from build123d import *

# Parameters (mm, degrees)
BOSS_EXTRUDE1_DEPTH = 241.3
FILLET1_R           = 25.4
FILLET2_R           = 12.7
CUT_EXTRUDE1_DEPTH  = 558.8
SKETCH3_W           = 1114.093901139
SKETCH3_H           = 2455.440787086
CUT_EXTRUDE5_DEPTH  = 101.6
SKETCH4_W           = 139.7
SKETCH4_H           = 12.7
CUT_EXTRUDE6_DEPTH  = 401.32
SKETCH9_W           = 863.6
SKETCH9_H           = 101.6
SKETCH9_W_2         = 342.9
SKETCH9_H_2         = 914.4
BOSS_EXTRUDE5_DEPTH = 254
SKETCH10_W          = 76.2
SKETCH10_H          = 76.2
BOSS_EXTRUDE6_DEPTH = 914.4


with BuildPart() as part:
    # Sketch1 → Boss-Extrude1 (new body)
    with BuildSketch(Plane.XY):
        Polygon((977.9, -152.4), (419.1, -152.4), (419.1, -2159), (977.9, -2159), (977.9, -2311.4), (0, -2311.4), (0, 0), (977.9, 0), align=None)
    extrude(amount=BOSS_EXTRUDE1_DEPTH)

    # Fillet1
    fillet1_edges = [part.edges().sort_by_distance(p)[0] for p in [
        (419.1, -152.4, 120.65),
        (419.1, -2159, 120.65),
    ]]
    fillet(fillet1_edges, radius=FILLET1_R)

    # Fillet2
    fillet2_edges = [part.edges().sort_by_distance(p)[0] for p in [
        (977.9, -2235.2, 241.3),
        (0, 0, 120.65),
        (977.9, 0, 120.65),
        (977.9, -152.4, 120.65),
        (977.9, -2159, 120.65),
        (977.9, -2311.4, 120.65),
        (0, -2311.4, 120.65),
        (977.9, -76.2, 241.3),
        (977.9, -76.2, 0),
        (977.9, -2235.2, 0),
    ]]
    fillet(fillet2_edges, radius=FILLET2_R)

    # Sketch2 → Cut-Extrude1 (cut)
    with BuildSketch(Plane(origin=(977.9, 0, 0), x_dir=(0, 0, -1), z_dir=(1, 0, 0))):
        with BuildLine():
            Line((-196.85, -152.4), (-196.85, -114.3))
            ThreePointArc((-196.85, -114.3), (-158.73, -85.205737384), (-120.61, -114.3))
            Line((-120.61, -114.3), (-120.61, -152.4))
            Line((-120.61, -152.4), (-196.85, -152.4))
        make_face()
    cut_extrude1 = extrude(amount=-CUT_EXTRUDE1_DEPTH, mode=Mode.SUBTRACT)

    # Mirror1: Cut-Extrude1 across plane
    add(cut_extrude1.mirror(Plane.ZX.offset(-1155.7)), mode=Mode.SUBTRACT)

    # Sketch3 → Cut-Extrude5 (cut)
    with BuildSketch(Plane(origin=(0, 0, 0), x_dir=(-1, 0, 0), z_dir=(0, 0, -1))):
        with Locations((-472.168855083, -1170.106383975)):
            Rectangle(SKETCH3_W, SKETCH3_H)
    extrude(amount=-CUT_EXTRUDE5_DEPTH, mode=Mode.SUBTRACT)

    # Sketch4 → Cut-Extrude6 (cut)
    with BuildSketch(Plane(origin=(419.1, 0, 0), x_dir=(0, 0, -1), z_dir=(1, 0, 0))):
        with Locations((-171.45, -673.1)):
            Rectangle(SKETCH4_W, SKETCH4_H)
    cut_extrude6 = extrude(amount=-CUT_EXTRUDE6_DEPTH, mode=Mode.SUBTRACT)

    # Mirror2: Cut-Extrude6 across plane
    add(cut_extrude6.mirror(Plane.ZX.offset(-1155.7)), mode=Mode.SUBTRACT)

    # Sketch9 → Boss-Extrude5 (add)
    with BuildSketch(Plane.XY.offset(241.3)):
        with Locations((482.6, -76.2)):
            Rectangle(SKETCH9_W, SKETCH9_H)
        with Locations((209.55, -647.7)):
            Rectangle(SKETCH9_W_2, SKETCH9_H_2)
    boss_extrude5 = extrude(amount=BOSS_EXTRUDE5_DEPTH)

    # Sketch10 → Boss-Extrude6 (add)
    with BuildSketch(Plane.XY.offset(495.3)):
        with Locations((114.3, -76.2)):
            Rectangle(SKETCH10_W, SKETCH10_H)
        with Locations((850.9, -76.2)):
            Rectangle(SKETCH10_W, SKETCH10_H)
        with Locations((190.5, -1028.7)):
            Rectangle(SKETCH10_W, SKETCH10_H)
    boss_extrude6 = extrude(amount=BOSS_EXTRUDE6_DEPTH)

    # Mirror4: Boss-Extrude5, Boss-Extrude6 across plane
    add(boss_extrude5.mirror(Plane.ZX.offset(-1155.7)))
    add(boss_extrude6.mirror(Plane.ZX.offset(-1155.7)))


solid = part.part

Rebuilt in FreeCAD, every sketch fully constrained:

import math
import FreeCAD as App
import Part
import Sketcher
Q = App.Units.Quantity


def edges_at(feature, points):
    """Names of the edges that pass closest to the given points."""
    edges = feature.Shape.Edges
    near = lambda p: min(range(len(edges)), key=lambda i: edges[i].distToShape(Part.Vertex(*p))[0])
    return sorted({f"Edge{near(p) + 1}" for p in points})

doc = App.newDocument("Part")
body = doc.addObject("PartDesign::Body", "Body")

sketch1 = body.newObject("Sketcher::SketchObject", "Sketch")
sketch1.AttachmentSupport = (doc.getObject("XY_Plane"), [""])
sketch1.MapMode = "FlatFace"
sketch1.addGeometry(Part.LineSegment(App.Vector(419, -152, 0), App.Vector(978, -152, 0)), False)
sketch1.addGeometry(Part.LineSegment(App.Vector(978, -152, 0), App.Vector(978, 0, 0)), False)
sketch1.addGeometry(Part.LineSegment(App.Vector(978, 0, 0), App.Vector(0, 0, 0)), False)
sketch1.addGeometry(Part.LineSegment(App.Vector(0, 0, 0), App.Vector(0, -2311, 0)), False)
sketch1.addGeometry(Part.LineSegment(App.Vector(0, -2311, 0), App.Vector(978, -2311, 0)), False)
sketch1.addGeometry(Part.LineSegment(App.Vector(978, -2311, 0), App.Vector(978, -2159, 0)), False)
sketch1.addGeometry(Part.LineSegment(App.Vector(978, -2159, 0), App.Vector(419, -2159, 0)), False)
sketch1.addGeometry(Part.LineSegment(App.Vector(419, -2159, 0), App.Vector(419, -152, 0)), False)
sketch1.addConstraint(Sketcher.Constraint("Coincident", 0, 2, 1, 1))
sketch1.addConstraint(Sketcher.Constraint("Coincident", 1, 2, 2, 1))
sketch1.addConstraint(Sketcher.Constraint("Coincident", 2, 2, 3, 1))
sketch1.addConstraint(Sketcher.Constraint("Coincident", 3, 2, 4, 1))
sketch1.addConstraint(Sketcher.Constraint("Coincident", 4, 2, 5, 1))
sketch1.addConstraint(Sketcher.Constraint("Coincident", 5, 2, 6, 1))
sketch1.addConstraint(Sketcher.Constraint("Coincident", 6, 2, 7, 1))
sketch1.addConstraint(Sketcher.Constraint("Coincident", 7, 2, 0, 1))
sketch1.addConstraint(Sketcher.Constraint("Horizontal", 0))
sketch1.addConstraint(Sketcher.Constraint("Vertical", 1))
sketch1.addConstraint(Sketcher.Constraint("Horizontal", 2))
sketch1.addConstraint(Sketcher.Constraint("Vertical", 3))
sketch1.addConstraint(Sketcher.Constraint("Horizontal", 4))
sketch1.addConstraint(Sketcher.Constraint("Vertical", 5))
sketch1.addConstraint(Sketcher.Constraint("Horizontal", 6))
sketch1.addConstraint(Sketcher.Constraint("Vertical", 7))
sketch1.addConstraint(Sketcher.Constraint("Coincident", 2, 2, -1, 1))
sketch1.addConstraint(Sketcher.Constraint("Vertical", 1, 2, 4, 2))
sketch1.addConstraint(Sketcher.Constraint("Equal", 1, 5))
sketch1.addConstraint(Sketcher.Constraint("DistanceX", 0, 1, 0, 2, Q("22 in")))
sketch1.addConstraint(Sketcher.Constraint("DistanceY", 1, 1, 1, 2, Q("6 in")))
sketch1.addConstraint(Sketcher.Constraint("DistanceY", 3, 2, 3, 1, Q("91 in")))
sketch1.addConstraint(Sketcher.Constraint("DistanceX", 2, 2, 2, 1, Q("38.5 in")))
pad1 = body.newObject("PartDesign::Pad", "Pad")
pad1.Profile = sketch1
pad1.Length = Q("9.5 in")
doc.recompute()

fillet = body.newObject("PartDesign::Fillet", "Fillet")
fillet.Base = (pad1, edges_at(pad1, [(419.1, -152.4, 120.65), (419.1, -2159, 120.65)]))
fillet.Radius = Q("1 in")
doc.recompute()

fillet2 = body.newObject("PartDesign::Fillet", "Fillet001")
fillet2.Base = (fillet, edges_at(fillet, [
    (977.9, -2235.2, 241.3),
    (0, 0, 120.65),
    (977.9, 0, 120.65),
    (977.9, -152.4, 120.65),
    (977.9, -2159, 120.65),
    (977.9, -2311.4, 120.65),
    (0, -2311.4, 120.65),
    (977.9, -76.2, 241.3),
    (977.9, -76.2, 0),
    (977.9, -2235.2, 0),
]))
fillet2.Radius = Q("0.5 in")

sketch2 = body.newObject("Sketcher::SketchObject", "Sketch001")
sketch2.AttachmentSupport = (doc.getObject("YZ_Plane"), [""])
sketch2.MapMode = "FlatFace"
sketch2.AttachmentOffset = App.Placement(App.Vector(0, 0, 38.5 * 25.4), App.Rotation())
sketch2.addGeometry(Part.LineSegment(App.Vector(-114, 197, 0), App.Vector(-152, 197, 0)), False)
sketch2.addGeometry(Part.LineSegment(App.Vector(-152, 197, 0), App.Vector(-152, 121, 0)), False)
sketch2.addGeometry(Part.LineSegment(App.Vector(-152, 121, 0), App.Vector(-114, 121, 0)), False)
sketch2.addGeometry(Part.ArcOfCircle(Part.Circle(App.Vector(-125, 159, 0), App.Vector(0, 0, 1), 40), math.radians(-75), math.radians(75)), False)
sketch2.addConstraint(Sketcher.Constraint("Coincident", 0, 2, 1, 1))
sketch2.addConstraint(Sketcher.Constraint("Coincident", 1, 2, 2, 1))
sketch2.addConstraint(Sketcher.Constraint("Coincident", 2, 2, 3, 1))
sketch2.addConstraint(Sketcher.Constraint("Coincident", 3, 2, 0, 1))
sketch2.addConstraint(Sketcher.Constraint("Horizontal", 0))
sketch2.addConstraint(Sketcher.Constraint("Vertical", 1))
sketch2.addConstraint(Sketcher.Constraint("Horizontal", 2))
sketch2.addConstraint(Sketcher.Constraint("Vertical", 2, 2, 3, 2))
sketch2.addConstraint(Sketcher.Constraint("DistanceX", 0, 2, 0, 1, Q("1.5 in")))
sketch2.addConstraint(Sketcher.Constraint("DistanceX", 0, 2, -1, 1, Q("6 in")))
sketch2.addConstraint(Sketcher.Constraint("DistanceY", -1, 1, 0, 2, Q("7.75 in")))
sketch2.addConstraint(Sketcher.Constraint("Radius", 3, 39.52))
sketch2.addConstraint(Sketcher.Constraint("DistanceY", 1, 2, 1, 1, 76.24))
pocket1 = body.newObject("PartDesign::Pocket", "Pocket")
pocket1.Profile = sketch2
pocket1.Length = Q("22 in")
doc.recompute()

datumplane = body.newObject("PartDesign::Plane", "DatumPlane")
datumplane.AttachmentSupport = (doc.getObject("XZ_Plane"), [""])
datumplane.MapMode = "FlatFace"
datumplane.AttachmentOffset = App.Placement(App.Vector(0, 0, 45.5 * 25.4), App.Rotation())
mirrored = body.newObject("PartDesign::Mirrored", "Mirrored")
mirrored.Originals = [pocket1]
mirrored.MirrorPlane = (datumplane, [""])
body.Tip = mirrored

sketch3 = body.newObject("Sketcher::SketchObject", "Sketch002")
sketch3.AttachmentSupport = (doc.getObject("XY_Plane"), [""])
sketch3.MapMode = "FlatFace"
sketch3.addGeometry(Part.LineSegment(App.Vector(1029, 58, 0), App.Vector(1029, -2398, 0)), False)
sketch3.addGeometry(Part.LineSegment(App.Vector(1029, -2398, 0), App.Vector(-85, -2398, 0)), False)
sketch3.addGeometry(Part.LineSegment(App.Vector(-85, -2398, 0), App.Vector(-85, 58, 0)), False)
sketch3.addGeometry(Part.LineSegment(App.Vector(-85, 58, 0), App.Vector(1029, 58, 0)), False)
sketch3.addConstraint(Sketcher.Constraint("Coincident", 0, 2, 1, 1))
sketch3.addConstraint(Sketcher.Constraint("Coincident", 1, 2, 2, 1))
sketch3.addConstraint(Sketcher.Constraint("Coincident", 2, 2, 3, 1))
sketch3.addConstraint(Sketcher.Constraint("Coincident", 3, 2, 0, 1))
sketch3.addConstraint(Sketcher.Constraint("Vertical", 0))
sketch3.addConstraint(Sketcher.Constraint("Horizontal", 1))
sketch3.addConstraint(Sketcher.Constraint("Vertical", 2))
sketch3.addConstraint(Sketcher.Constraint("Horizontal", 3))
sketch3.addConstraint(Sketcher.Constraint("DistanceX", 1, 2, 1, 1, 1114.093901))
sketch3.addConstraint(Sketcher.Constraint("DistanceY", 0, 2, 0, 1, 2455.440787))
sketch3.addConstraint(Sketcher.Constraint("DistanceY", -1, 1, 2, 2, 57.61401))
sketch3.addConstraint(Sketcher.Constraint("DistanceX", -1, 1, 0, 2, 1029.215806))
pocket2 = body.newObject("PartDesign::Pocket", "Pocket001")
pocket2.Profile = sketch3
pocket2.Length = Q("4 in")
pocket2.Reversed = True

sketch4 = body.newObject("Sketcher::SketchObject", "Sketch003")
sketch4.AttachmentSupport = (doc.getObject("YZ_Plane"), [""])
sketch4.MapMode = "FlatFace"
sketch4.AttachmentOffset = App.Placement(App.Vector(0, 0, 16.5 * 25.4), App.Rotation())
sketch4.addGeometry(Part.LineSegment(App.Vector(-667, 241, 0), App.Vector(-679, 241, 0)), False)
sketch4.addGeometry(Part.LineSegment(App.Vector(-679, 241, 0), App.Vector(-679, 102, 0)), False)
sketch4.addGeometry(Part.LineSegment(App.Vector(-679, 102, 0), App.Vector(-667, 102, 0)), False)
sketch4.addGeometry(Part.LineSegment(App.Vector(-667, 102, 0), App.Vector(-667, 241, 0)), False)
sketch4.addConstraint(Sketcher.Constraint("Coincident", 0, 2, 1, 1))
sketch4.addConstraint(Sketcher.Constraint("Coincident", 1, 2, 2, 1))
sketch4.addConstraint(Sketcher.Constraint("Coincident", 2, 2, 3, 1))
sketch4.addConstraint(Sketcher.Constraint("Coincident", 3, 2, 0, 1))
sketch4.addConstraint(Sketcher.Constraint("Horizontal", 0))
sketch4.addConstraint(Sketcher.Constraint("Vertical", 1))
sketch4.addConstraint(Sketcher.Constraint("Horizontal", 2))
sketch4.addConstraint(Sketcher.Constraint("Vertical", 3))
sketch4.addConstraint(Sketcher.Constraint("DistanceX", 0, 2, 0, 1, Q("0.5 in")))
sketch4.addConstraint(Sketcher.Constraint("DistanceY", 1, 2, 1, 1, Q("5.5 in")))
sketch4.addConstraint(Sketcher.Constraint("DistanceY", -1, 1, 1, 2, Q("4 in")))
sketch4.addConstraint(Sketcher.Constraint("DistanceX", 0, 2, -1, 1, Q("26.75 in")))
pocket3 = body.newObject("PartDesign::Pocket", "Pocket002")
pocket3.Profile = sketch4
pocket3.Length = Q("15.8 in")
doc.recompute()

datumplane2 = body.newObject("PartDesign::Plane", "DatumPlane001")
datumplane2.AttachmentSupport = (doc.getObject("XZ_Plane"), [""])
datumplane2.MapMode = "FlatFace"
datumplane2.AttachmentOffset = App.Placement(App.Vector(0, 0, 45.5 * 25.4), App.Rotation())
mirrored2 = body.newObject("PartDesign::Mirrored", "Mirrored001")
mirrored2.Originals = [pocket3]
mirrored2.MirrorPlane = (datumplane2, [""])
body.Tip = mirrored2

sketch5 = body.newObject("Sketcher::SketchObject", "Sketch004")
sketch5.AttachmentSupport = (doc.getObject("XY_Plane"), [""])
sketch5.MapMode = "FlatFace"
sketch5.AttachmentOffset = App.Placement(App.Vector(0, 0, 9.5 * 25.4), App.Rotation())
sketch5.addGeometry(Part.LineSegment(App.Vector(51, -25, 0), App.Vector(51, -127, 0)), False)
sketch5.addGeometry(Part.LineSegment(App.Vector(51, -127, 0), App.Vector(914, -127, 0)), False)
sketch5.addGeometry(Part.LineSegment(App.Vector(914, -127, 0), App.Vector(914, -25, 0)), False)
sketch5.addGeometry(Part.LineSegment(App.Vector(914, -25, 0), App.Vector(51, -25, 0)), False)
sketch5.addGeometry(Part.LineSegment(App.Vector(38, -190, 0), App.Vector(38, -1105, 0)), False)
sketch5.addGeometry(Part.LineSegment(App.Vector(38, -1105, 0), App.Vector(381, -1105, 0)), False)
sketch5.addGeometry(Part.LineSegment(App.Vector(381, -1105, 0), App.Vector(381, -190, 0)), False)
sketch5.addGeometry(Part.LineSegment(App.Vector(381, -190, 0), App.Vector(38, -190, 0)), False)
sketch5.addConstraint(Sketcher.Constraint("Coincident", 0, 2, 1, 1))
sketch5.addConstraint(Sketcher.Constraint("Coincident", 1, 2, 2, 1))
sketch5.addConstraint(Sketcher.Constraint("Coincident", 2, 2, 3, 1))
sketch5.addConstraint(Sketcher.Constraint("Coincident", 3, 2, 0, 1))
sketch5.addConstraint(Sketcher.Constraint("Coincident", 4, 2, 5, 1))
sketch5.addConstraint(Sketcher.Constraint("Coincident", 5, 2, 6, 1))
sketch5.addConstraint(Sketcher.Constraint("Coincident", 6, 2, 7, 1))
sketch5.addConstraint(Sketcher.Constraint("Coincident", 7, 2, 4, 1))
sketch5.addConstraint(Sketcher.Constraint("Vertical", 0))
sketch5.addConstraint(Sketcher.Constraint("Horizontal", 1))
sketch5.addConstraint(Sketcher.Constraint("Vertical", 2))
sketch5.addConstraint(Sketcher.Constraint("Horizontal", 3))
sketch5.addConstraint(Sketcher.Constraint("Vertical", 4))
sketch5.addConstraint(Sketcher.Constraint("Horizontal", 5))
sketch5.addConstraint(Sketcher.Constraint("Vertical", 6))
sketch5.addConstraint(Sketcher.Constraint("Horizontal", 7))
sketch5.addConstraint(Sketcher.Constraint("DistanceX", 1, 1, 1, 2, Q("34 in")))
sketch5.addConstraint(Sketcher.Constraint("DistanceY", 0, 2, 0, 1, Q("4 in")))
sketch5.addConstraint(Sketcher.Constraint("DistanceY", 4, 2, 4, 1, Q("36 in")))
sketch5.addConstraint(Sketcher.Constraint("DistanceX", 5, 1, 5, 2, Q("13.5 in")))
sketch5.addConstraint(Sketcher.Constraint("DistanceX", -1, 1, 0, 2, Q("2 in")))
sketch5.addConstraint(Sketcher.Constraint("DistanceY", 0, 2, -1, 1, Q("5 in")))
sketch5.addConstraint(Sketcher.Constraint("DistanceX", -1, 1, 5, 2, Q("15 in")))
sketch5.addConstraint(Sketcher.Constraint("DistanceY", 4, 2, -1, 1, Q("43.5 in")))
pad2 = body.newObject("PartDesign::Pad", "Pad001")
pad2.Profile = sketch5
pad2.Length = Q("10 in")

sketch6 = body.newObject("Sketcher::SketchObject", "Sketch005")
sketch6.AttachmentSupport = (doc.getObject("XY_Plane"), [""])
sketch6.MapMode = "FlatFace"
sketch6.AttachmentOffset = App.Placement(App.Vector(0, 0, 19.5 * 25.4), App.Rotation())
sketch6.addGeometry(Part.LineSegment(App.Vector(76, -38, 0), App.Vector(76, -114, 0)), False)
sketch6.addGeometry(Part.LineSegment(App.Vector(76, -114, 0), App.Vector(152, -114, 0)), False)
sketch6.addGeometry(Part.LineSegment(App.Vector(152, -114, 0), App.Vector(152, -38, 0)), False)
sketch6.addGeometry(Part.LineSegment(App.Vector(152, -38, 0), App.Vector(76, -38, 0)), False)
sketch6.addGeometry(Part.LineSegment(App.Vector(813, -38, 0), App.Vector(813, -114, 0)), False)
sketch6.addGeometry(Part.LineSegment(App.Vector(813, -114, 0), App.Vector(889, -114, 0)), False)
sketch6.addGeometry(Part.LineSegment(App.Vector(889, -114, 0), App.Vector(889, -38, 0)), False)
sketch6.addGeometry(Part.LineSegment(App.Vector(889, -38, 0), App.Vector(813, -38, 0)), False)
sketch6.addGeometry(Part.LineSegment(App.Vector(152, -991, 0), App.Vector(152, -1067, 0)), False)
sketch6.addGeometry(Part.LineSegment(App.Vector(152, -1067, 0), App.Vector(229, -1067, 0)), False)
sketch6.addGeometry(Part.LineSegment(App.Vector(229, -1067, 0), App.Vector(229, -991, 0)), False)
sketch6.addGeometry(Part.LineSegment(App.Vector(229, -991, 0), App.Vector(152, -991, 0)), False)
sketch6.addConstraint(Sketcher.Constraint("Coincident", 0, 2, 1, 1))
sketch6.addConstraint(Sketcher.Constraint("Coincident", 1, 2, 2, 1))
sketch6.addConstraint(Sketcher.Constraint("Coincident", 2, 2, 3, 1))
sketch6.addConstraint(Sketcher.Constraint("Coincident", 3, 2, 0, 1))
sketch6.addConstraint(Sketcher.Constraint("Coincident", 4, 2, 5, 1))
sketch6.addConstraint(Sketcher.Constraint("Coincident", 5, 2, 6, 1))
sketch6.addConstraint(Sketcher.Constraint("Coincident", 6, 2, 7, 1))
sketch6.addConstraint(Sketcher.Constraint("Coincident", 7, 2, 4, 1))
sketch6.addConstraint(Sketcher.Constraint("Coincident", 8, 2, 9, 1))
sketch6.addConstraint(Sketcher.Constraint("Coincident", 9, 2, 10, 1))
sketch6.addConstraint(Sketcher.Constraint("Coincident", 10, 2, 11, 1))
sketch6.addConstraint(Sketcher.Constraint("Coincident", 11, 2, 8, 1))
sketch6.addConstraint(Sketcher.Constraint("Vertical", 0))
sketch6.addConstraint(Sketcher.Constraint("Horizontal", 1))
sketch6.addConstraint(Sketcher.Constraint("Vertical", 2))
sketch6.addConstraint(Sketcher.Constraint("Horizontal", 3))
sketch6.addConstraint(Sketcher.Constraint("Vertical", 4))
sketch6.addConstraint(Sketcher.Constraint("Horizontal", 5))
sketch6.addConstraint(Sketcher.Constraint("Vertical", 6))
sketch6.addConstraint(Sketcher.Constraint("Horizontal", 7))
sketch6.addConstraint(Sketcher.Constraint("Vertical", 8))
sketch6.addConstraint(Sketcher.Constraint("Horizontal", 9))
sketch6.addConstraint(Sketcher.Constraint("Vertical", 10))
sketch6.addConstraint(Sketcher.Constraint("Horizontal", 11))
sketch6.addConstraint(Sketcher.Constraint("Horizontal", 1, 2, 4, 2))
sketch6.addConstraint(Sketcher.Constraint("Horizontal", 3, 2, 6, 2))
sketch6.addConstraint(Sketcher.Constraint("Vertical", 2, 2, 8, 2))
sketch6.addConstraint(Sketcher.Constraint("Equal", 3, 5))
sketch6.addConstraint(Sketcher.Constraint("Equal", 7, 9))
sketch6.addConstraint(Sketcher.Constraint("Equal", 11, 0))
sketch6.addConstraint(Sketcher.Constraint("Equal", 6, 8))
sketch6.addConstraint(Sketcher.Constraint("DistanceX", 1, 1, 1, 2, Q("3 in")))
sketch6.addConstraint(Sketcher.Constraint("DistanceX", -1, 1, 0, 2, Q("3 in")))
sketch6.addConstraint(Sketcher.Constraint("DistanceX", -1, 1, 4, 2, Q("32 in")))
sketch6.addConstraint(Sketcher.Constraint("DistanceY", 8, 2, -1, 1, Q("42 in")))
sketch6.addConstraint(Sketcher.Constraint("DistanceY", 0, 2, -1, 1, Q("4.5 in")))
pad3 = body.newObject("PartDesign::Pad", "Pad002")
pad3.Profile = sketch6
pad3.Length = Q("36 in")
doc.recompute()

datumplane3 = body.newObject("PartDesign::Plane", "DatumPlane002")
datumplane3.AttachmentSupport = (doc.getObject("XZ_Plane"), [""])
datumplane3.MapMode = "FlatFace"
datumplane3.AttachmentOffset = App.Placement(App.Vector(0, 0, 45.5 * 25.4), App.Rotation())
mirrored3 = body.newObject("PartDesign::Mirrored", "Mirrored002")
mirrored3.Originals = [pad2, pad3]
mirrored3.MirrorPlane = (datumplane3, [""])
body.Tip = mirrored3

doc.recompute()
